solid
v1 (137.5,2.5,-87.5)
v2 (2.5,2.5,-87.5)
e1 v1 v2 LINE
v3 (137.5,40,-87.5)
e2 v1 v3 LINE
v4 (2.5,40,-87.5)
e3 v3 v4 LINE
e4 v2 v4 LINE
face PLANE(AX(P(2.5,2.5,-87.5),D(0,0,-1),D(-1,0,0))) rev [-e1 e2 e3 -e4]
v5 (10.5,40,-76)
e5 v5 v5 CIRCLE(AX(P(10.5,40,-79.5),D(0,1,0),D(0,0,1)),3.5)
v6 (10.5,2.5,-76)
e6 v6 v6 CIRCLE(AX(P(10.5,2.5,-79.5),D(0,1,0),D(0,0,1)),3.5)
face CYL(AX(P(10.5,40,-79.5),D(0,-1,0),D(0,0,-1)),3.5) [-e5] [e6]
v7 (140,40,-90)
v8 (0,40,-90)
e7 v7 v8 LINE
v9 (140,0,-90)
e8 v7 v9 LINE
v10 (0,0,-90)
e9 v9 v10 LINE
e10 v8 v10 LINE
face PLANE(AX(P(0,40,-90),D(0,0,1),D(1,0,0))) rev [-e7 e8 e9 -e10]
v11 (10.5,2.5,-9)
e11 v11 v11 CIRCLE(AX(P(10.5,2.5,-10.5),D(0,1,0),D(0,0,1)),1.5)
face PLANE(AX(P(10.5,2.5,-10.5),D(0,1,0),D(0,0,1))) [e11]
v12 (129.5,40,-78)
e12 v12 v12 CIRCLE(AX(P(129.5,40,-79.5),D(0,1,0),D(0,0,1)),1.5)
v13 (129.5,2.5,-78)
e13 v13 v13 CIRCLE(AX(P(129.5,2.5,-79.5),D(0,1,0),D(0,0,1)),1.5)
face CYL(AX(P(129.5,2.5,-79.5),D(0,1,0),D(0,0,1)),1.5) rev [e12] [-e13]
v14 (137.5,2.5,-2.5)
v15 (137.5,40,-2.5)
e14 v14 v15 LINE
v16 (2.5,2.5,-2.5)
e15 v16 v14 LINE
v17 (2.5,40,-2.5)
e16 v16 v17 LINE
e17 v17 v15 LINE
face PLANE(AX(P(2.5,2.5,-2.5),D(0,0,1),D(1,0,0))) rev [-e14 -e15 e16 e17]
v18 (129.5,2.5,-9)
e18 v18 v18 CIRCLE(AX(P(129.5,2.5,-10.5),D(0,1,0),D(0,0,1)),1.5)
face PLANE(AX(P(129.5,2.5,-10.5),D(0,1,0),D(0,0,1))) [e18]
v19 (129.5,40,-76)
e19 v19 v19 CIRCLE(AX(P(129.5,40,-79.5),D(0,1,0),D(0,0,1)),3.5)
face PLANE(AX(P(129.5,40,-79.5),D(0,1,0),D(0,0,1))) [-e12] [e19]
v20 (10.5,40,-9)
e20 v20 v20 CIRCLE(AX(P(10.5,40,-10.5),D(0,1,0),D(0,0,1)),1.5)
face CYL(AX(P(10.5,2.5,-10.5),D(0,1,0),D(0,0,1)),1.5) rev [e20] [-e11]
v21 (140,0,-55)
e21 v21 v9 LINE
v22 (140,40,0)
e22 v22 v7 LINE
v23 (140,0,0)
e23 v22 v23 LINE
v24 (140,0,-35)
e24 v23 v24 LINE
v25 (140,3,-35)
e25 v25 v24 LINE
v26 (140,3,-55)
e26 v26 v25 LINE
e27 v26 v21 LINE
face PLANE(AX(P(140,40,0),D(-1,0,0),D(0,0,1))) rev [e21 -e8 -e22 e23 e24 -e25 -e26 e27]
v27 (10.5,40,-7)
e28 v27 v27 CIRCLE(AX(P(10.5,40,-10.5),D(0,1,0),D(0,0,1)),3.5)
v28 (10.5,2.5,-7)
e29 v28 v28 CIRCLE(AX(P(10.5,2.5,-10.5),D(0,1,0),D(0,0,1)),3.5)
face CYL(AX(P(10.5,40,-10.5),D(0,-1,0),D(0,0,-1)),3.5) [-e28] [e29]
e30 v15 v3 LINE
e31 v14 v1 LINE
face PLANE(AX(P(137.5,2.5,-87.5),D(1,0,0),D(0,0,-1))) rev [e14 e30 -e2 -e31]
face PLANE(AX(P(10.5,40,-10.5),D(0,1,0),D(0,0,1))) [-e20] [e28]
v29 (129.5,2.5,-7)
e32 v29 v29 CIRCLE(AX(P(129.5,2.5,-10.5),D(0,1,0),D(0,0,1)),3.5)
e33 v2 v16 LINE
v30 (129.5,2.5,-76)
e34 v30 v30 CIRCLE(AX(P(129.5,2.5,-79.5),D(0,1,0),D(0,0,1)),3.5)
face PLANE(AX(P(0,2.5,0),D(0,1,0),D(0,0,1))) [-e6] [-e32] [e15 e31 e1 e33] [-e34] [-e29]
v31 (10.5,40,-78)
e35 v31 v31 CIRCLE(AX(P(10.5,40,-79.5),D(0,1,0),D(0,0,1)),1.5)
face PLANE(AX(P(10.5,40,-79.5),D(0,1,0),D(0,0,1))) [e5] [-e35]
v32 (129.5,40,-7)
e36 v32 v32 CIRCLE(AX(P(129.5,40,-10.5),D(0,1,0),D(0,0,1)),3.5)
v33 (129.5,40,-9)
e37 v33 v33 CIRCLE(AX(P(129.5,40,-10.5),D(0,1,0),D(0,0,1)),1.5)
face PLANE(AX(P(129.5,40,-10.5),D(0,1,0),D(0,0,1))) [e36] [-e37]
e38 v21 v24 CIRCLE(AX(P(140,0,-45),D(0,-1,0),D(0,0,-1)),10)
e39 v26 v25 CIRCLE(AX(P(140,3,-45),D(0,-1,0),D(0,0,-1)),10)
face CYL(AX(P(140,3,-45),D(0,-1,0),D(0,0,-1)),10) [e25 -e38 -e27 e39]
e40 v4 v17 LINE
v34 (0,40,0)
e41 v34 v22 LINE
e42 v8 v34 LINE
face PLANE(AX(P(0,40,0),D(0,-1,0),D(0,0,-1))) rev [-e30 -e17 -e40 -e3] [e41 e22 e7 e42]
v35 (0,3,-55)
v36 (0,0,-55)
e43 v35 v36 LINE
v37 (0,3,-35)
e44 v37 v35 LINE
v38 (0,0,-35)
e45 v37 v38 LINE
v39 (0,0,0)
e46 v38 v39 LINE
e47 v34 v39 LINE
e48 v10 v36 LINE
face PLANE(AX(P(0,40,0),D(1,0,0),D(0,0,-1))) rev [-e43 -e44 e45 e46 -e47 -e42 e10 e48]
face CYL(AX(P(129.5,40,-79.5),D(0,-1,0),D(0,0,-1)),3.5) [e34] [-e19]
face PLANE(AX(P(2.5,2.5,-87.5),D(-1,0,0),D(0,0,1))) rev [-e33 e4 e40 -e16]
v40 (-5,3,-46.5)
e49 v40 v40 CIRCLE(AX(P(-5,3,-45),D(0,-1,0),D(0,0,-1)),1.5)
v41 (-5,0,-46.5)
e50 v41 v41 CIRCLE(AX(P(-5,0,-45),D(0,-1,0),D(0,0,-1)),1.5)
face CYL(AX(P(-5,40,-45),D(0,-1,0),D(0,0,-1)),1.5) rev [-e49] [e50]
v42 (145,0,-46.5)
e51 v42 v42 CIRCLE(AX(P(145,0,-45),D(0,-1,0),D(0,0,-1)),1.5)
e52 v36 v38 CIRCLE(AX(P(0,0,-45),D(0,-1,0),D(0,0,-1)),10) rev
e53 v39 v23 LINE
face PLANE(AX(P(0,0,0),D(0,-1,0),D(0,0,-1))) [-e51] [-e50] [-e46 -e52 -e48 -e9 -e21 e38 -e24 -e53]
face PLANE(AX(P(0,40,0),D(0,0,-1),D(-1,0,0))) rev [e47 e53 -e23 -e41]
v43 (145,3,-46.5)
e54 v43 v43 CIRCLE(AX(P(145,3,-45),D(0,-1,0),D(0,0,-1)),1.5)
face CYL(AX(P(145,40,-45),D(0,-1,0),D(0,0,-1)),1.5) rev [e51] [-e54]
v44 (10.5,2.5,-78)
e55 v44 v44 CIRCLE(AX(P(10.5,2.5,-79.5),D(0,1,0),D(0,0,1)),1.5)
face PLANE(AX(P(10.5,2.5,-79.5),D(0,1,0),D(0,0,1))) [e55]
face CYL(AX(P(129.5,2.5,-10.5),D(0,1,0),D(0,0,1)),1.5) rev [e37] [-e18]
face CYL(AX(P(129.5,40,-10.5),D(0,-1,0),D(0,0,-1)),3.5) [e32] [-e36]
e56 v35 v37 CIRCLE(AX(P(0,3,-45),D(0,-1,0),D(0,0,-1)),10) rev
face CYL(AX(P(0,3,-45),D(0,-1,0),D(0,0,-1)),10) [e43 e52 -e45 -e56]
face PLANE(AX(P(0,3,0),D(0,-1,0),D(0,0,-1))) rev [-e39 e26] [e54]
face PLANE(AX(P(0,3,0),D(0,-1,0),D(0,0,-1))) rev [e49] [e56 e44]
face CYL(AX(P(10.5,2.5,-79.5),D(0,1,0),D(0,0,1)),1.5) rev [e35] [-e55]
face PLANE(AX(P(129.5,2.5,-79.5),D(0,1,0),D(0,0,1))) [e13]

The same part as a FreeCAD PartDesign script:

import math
import FreeCAD as App
import Part
import Sketcher
from FreeCAD import Vector
Q = App.Units.Quantity

doc = App.newDocument("Part")
body = doc.addObject("PartDesign::Body", "Body")

sketch1 = body.newObject("Sketcher::SketchObject", "Sketch")
sketch1.AttachmentSupport = (doc.getObject("XZ_Plane"), [""])
sketch1.MapMode = "FlatFace"
sketch1.addGeometry([
    Part.LineSegment(Vector(0, -90, 0), Vector(0, 0, 0)),
    Part.LineSegment(Vector(0, 0, 0), Vector(140, 0, 0)),
    Part.LineSegment(Vector(140, 0, 0), Vector(140, -90, 0)),
    Part.LineSegment(Vector(140, -90, 0), Vector(0, -90, 0)),
], False)
sketch1.addConstraint([
    Sketcher.Constraint("Coincident", 0, 2, 1, 1),
    Sketcher.Constraint("Coincident", 1, 2, 2, 1),
    Sketcher.Constraint("Coincident", 2, 2, 3, 1),
    Sketcher.Constraint("Coincident", 3, 2, 0, 1),
    Sketcher.Constraint("Vertical", 0),
    Sketcher.Constraint("Horizontal", 1),
    Sketcher.Constraint("Vertical", 2),
    Sketcher.Constraint("Horizontal", 3),
    Sketcher.Constraint("Coincident", 0, 2, -1, 1),
    Sketcher.Constraint("DistanceX", 1, 1, 1, 2, Q("140 mm")),
    Sketcher.Constraint("DistanceY", 0, 1, 0, 2, Q("90 mm")),
])
pad1 = body.newObject("PartDesign::Pad", "Pad")
pad1.Profile = sketch1
pad1.Length = 40
pad1.Reversed = True

sketch2 = body.newObject("Sketcher::SketchObject", "Sketch001")
sketch2.AttachmentSupport = (doc.getObject("XZ_Plane"), [""])
sketch2.MapMode = "FlatFace"
sketch2.AttachmentOffset = App.Placement(Vector(0, 0, -40), App.Rotation())
sketch2.addGeometry([
    Part.LineSegment(Vector(2, -88, 0), Vector(2, -2, 0)),
    Part.LineSegment(Vector(2, -2, 0), Vector(138, -2, 0)),
    Part.LineSegment(Vector(138, -2, 0), Vector(138, -88, 0)),
    Part.LineSegment(Vector(138, -88, 0), Vector(2, -88, 0)),
], False)
sketch2.addConstraint([
    Sketcher.Constraint("Coincident", 0, 2, 1, 1),
    Sketcher.Constraint("Coincident", 1, 2, 2, 1),
    Sketcher.Constraint("Coincident", 2, 2, 3, 1),
    Sketcher.Constraint("Coincident", 3, 2, 0, 1),
    Sketcher.Constraint("Vertical", 0),
    Sketcher.Constraint("Horizontal", 1),
    Sketcher.Constraint("Vertical", 2),
    Sketcher.Constraint("Horizontal", 3),
    Sketcher.Constraint("DistanceX", 1, 1, 1, 2, Q("135 mm")),
    Sketcher.Constraint("DistanceY", 0, 1, 0, 2, Q("85 mm")),
    Sketcher.Constraint("DistanceX", -1, 1, 0, 2, Q("2.5 mm")),
    Sketcher.Constraint("DistanceY", 0, 2, -1, 1, Q("2.5 mm")),
])
pocket1 = body.newObject("PartDesign::Pocket", "Pocket")
pocket1.Profile = sketch2
pocket1.Length = 37.5
pocket1.Reversed = True

sketch3 = body.newObject("Sketcher::SketchObject", "Sketch002")
sketch3.AttachmentSupport = (doc.getObject("XZ_Plane"), [""])
sketch3.MapMode = "FlatFace"
sketch3.AttachmentOffset = App.Placement(Vector(0, 0, -2.5), App.Rotation())
sketch3.addGeometry([
    Part.Circle(Vector(10.5, -79.5, 0), Vector(0, 0, 1), 3.5),
    Part.Circle(Vector(10.5, -10.5, 0), Vector(0, 0, 1), 3.5),
    Part.Circle(Vector(129.5, -10.5, 0), Vector(0, 0, 1), 3.5),
    Part.Circle(Vector(129.5, -79.5, 0), Vector(0, 0, 1), 3.5),
], False)
sketch3.addConstraint([
    Sketcher.Constraint("Equal", 0, 1),
    Sketcher.Constraint("Equal", 1, 2),
    Sketcher.Constraint("Equal", 2, 3),
    Sketcher.Constraint("Horizontal", 1, 3, 2, 3),
    Sketcher.Constraint("Horizontal", 0, 3, 3, 3),
    Sketcher.Constraint("Vertical", 0, 3, 1, 3),
    Sketcher.Constraint("Vertical", 2, 3, 3, 3),
    Sketcher.Constraint("Diameter", 0, Q("7 mm")),
    Sketcher.Constraint("DistanceY", 0, 3, 1, 3, Q("69 mm")),
    Sketcher.Constraint("DistanceX", 1, 3, 2, 3, Q("119 mm")),
    Sketcher.Constraint("DistanceX", -1, 1, 0, 3, Q("10.5 mm")),
    Sketcher.Constraint("DistanceY", 0, 3, -1, 1, Q("79.5 mm")),
])
pad2 = body.newObject("PartDesign::Pad", "Pad001")
pad2.Profile = sketch3
pad2.Length = 37.5
pad2.Reversed = True

sketch4 = body.newObject("Sketcher::SketchObject", "Sketch003")
sketch4.AttachmentSupport = (doc.getObject("XZ_Plane"), [""])
sketch4.MapMode = "FlatFace"
sketch4.AttachmentOffset = App.Placement(Vector(0, 0, -40), App.Rotation())
sketch4.addGeometry([
    Part.Circle(Vector(10.5, -79.5, 0), Vector(0, 0, 1), 1.5),
    Part.Circle(Vector(129.5, -79.5, 0), Vector(0, 0, 1), 1.5),
    Part.Circle(Vector(10.5, -10.5, 0), Vector(0, 0, 1), 1.5),
    Part.Circle(Vector(129.5, -10.5, 0), Vector(0, 0, 1), 1.5),
], False)
sketch4.addConstraint([
    Sketcher.Constraint("Equal", 0, 1),
    Sketcher.Constraint("Equal", 1, 2),
    Sketcher.Constraint("Equal", 2, 3),
    Sketcher.Constraint("Horizontal", 0, 3, 1, 3),
    Sketcher.Constraint("Horizontal", 2, 3, 3, 3),
    Sketcher.Constraint("Vertical", 0, 3, 2, 3),
    Sketcher.Constraint("Vertical", 1, 3, 3, 3),
    Sketcher.Constraint("Diameter", 0, Q("3 mm")),
    Sketcher.Constraint("DistanceX", 0, 3, 1, 3, Q("119 mm")),
    Sketcher.Constraint("DistanceY", 0, 3, 2, 3, Q("69 mm")),
    Sketcher.Constraint("DistanceX", -1, 1, 0, 3, Q("10.5 mm")),
    Sketcher.Constraint("DistanceY", 0, 3, -1, 1, Q("79.5 mm")),
])
pocket2 = body.newObject("PartDesign::Pocket", "Pocket001")
pocket2.Profile = sketch4
pocket2.Length = 37.5
pocket2.Reversed = True

sketch5 = body.newObject("Sketcher::SketchObject", "Sketch004")
sketch5.AttachmentSupport = (doc.getObject("XZ_Plane"), [""])
sketch5.MapMode = "FlatFace"
sketch5.addGeometry([
    Part.ArcOfCircle(Part.Circle(Vector(0, -45, 0), Vector(0, 0, 1), 10), math.radians(90), math.radians(180)),
    Part.ArcOfCircle(Part.Circle(Vector(0, -45, 0), Vector(0, 0, 1), 10), math.radians(180), math.radians(270)),
    Part.LineSegment(Vector(0, -55, 0), Vector(0, -35, 0)),
    Part.LineSegment(Vector(140, -35, 0), Vector(140, -55, 0)),
    Part.ArcOfCircle(Part.Circle(Vector(140, -45, 0), Vector(0, 0, 1), 10), math.radians(-90), math.radians(0)),
    Part.ArcOfCircle(Part.Circle(Vector(140, -45, 0), Vector(0, 0, 1), 10), math.radians(0), math.radians(90)),
], False)
sketch5.addConstraint([
    Sketcher.Constraint("Tangent", 0, 2, 1, 1),
    Sketcher.Constraint("Coincident", 1, 2, 2, 1),
    Sketcher.Constraint("Coincident", 2, 2, 0, 1),
    Sketcher.Constraint("Coincident", 3, 2, 4, 1),
    Sketcher.Constraint("Tangent", 4, 2, 5, 1),
    Sketcher.Constraint("Coincident", 5, 2, 3, 1),
    Sketcher.Constraint("Vertical", 2),
    Sketcher.Constraint("Vertical", 3),
    Sketcher.Constraint("Equal", 0, 1),
    Sketcher.Constraint("Equal", 1, 4),
    Sketcher.Constraint("Equal", 4, 5),
    Sketcher.Constraint("PointOnObject", 0, 3, -2),
    Sketcher.Constraint("PointOnObject", 1, 2, -2),
    Sketcher.Constraint("Horizontal", 1, 3, 4, 3),
    Sketcher.Constraint("Horizontal", 5, 3, 0, 2),
    Sketcher.Constraint("Horizontal", 0, 2, 4, 2),
    Sketcher.Constraint("Vertical", 5, 3, 3, 2),
    Sketcher.Constraint("Radius", 0, Q("10 mm")),
    Sketcher.Constraint("DistanceY", 0, 3, -1, 1, Q("45 mm")),
    Sketcher.Constraint("DistanceX", -1, 1, 4, 3, Q("140 mm")),
])
pad3 = body.newObject("PartDesign::Pad", "Pad002")
pad3.Profile = sketch5
pad3.Length = 3
pad3.Reversed = True

sketch6 = body.newObject("Sketcher::SketchObject", "Sketch005")
sketch6.AttachmentSupport = (doc.getObject("XZ_Plane"), [""])
sketch6.MapMode = "FlatFace"
sketch6.addGeometry([
    Part.Circle(Vector(-5, -45, 0), Vector(0, 0, 1), 1.5),
    Part.Circle(Vector(145, -45, 0), Vector(0, 0, 1), 1.5),
], False)
sketch6.addConstraint([
    Sketcher.Constraint("Equal", 0, 1),
    Sketcher.Constraint("Horizontal", 0, 3, 1, 3),
    Sketcher.Constraint("Diameter", 0, Q("3 mm")),
    Sketcher.Constraint("DistanceX", 0, 3, -1, 1, Q("5 mm")),
    Sketcher.Constraint("DistanceY", 0, 3, -1, 1, Q("45 mm")),
    Sketcher.Constraint("DistanceX", -1, 1, 1, 3, Q("145 mm")),
])
pocket3 = body.newObject("PartDesign::Pocket", "Pocket002")
pocket3.Profile = sketch6
pocket3.Type = "ThroughAll"

doc.recompute()
